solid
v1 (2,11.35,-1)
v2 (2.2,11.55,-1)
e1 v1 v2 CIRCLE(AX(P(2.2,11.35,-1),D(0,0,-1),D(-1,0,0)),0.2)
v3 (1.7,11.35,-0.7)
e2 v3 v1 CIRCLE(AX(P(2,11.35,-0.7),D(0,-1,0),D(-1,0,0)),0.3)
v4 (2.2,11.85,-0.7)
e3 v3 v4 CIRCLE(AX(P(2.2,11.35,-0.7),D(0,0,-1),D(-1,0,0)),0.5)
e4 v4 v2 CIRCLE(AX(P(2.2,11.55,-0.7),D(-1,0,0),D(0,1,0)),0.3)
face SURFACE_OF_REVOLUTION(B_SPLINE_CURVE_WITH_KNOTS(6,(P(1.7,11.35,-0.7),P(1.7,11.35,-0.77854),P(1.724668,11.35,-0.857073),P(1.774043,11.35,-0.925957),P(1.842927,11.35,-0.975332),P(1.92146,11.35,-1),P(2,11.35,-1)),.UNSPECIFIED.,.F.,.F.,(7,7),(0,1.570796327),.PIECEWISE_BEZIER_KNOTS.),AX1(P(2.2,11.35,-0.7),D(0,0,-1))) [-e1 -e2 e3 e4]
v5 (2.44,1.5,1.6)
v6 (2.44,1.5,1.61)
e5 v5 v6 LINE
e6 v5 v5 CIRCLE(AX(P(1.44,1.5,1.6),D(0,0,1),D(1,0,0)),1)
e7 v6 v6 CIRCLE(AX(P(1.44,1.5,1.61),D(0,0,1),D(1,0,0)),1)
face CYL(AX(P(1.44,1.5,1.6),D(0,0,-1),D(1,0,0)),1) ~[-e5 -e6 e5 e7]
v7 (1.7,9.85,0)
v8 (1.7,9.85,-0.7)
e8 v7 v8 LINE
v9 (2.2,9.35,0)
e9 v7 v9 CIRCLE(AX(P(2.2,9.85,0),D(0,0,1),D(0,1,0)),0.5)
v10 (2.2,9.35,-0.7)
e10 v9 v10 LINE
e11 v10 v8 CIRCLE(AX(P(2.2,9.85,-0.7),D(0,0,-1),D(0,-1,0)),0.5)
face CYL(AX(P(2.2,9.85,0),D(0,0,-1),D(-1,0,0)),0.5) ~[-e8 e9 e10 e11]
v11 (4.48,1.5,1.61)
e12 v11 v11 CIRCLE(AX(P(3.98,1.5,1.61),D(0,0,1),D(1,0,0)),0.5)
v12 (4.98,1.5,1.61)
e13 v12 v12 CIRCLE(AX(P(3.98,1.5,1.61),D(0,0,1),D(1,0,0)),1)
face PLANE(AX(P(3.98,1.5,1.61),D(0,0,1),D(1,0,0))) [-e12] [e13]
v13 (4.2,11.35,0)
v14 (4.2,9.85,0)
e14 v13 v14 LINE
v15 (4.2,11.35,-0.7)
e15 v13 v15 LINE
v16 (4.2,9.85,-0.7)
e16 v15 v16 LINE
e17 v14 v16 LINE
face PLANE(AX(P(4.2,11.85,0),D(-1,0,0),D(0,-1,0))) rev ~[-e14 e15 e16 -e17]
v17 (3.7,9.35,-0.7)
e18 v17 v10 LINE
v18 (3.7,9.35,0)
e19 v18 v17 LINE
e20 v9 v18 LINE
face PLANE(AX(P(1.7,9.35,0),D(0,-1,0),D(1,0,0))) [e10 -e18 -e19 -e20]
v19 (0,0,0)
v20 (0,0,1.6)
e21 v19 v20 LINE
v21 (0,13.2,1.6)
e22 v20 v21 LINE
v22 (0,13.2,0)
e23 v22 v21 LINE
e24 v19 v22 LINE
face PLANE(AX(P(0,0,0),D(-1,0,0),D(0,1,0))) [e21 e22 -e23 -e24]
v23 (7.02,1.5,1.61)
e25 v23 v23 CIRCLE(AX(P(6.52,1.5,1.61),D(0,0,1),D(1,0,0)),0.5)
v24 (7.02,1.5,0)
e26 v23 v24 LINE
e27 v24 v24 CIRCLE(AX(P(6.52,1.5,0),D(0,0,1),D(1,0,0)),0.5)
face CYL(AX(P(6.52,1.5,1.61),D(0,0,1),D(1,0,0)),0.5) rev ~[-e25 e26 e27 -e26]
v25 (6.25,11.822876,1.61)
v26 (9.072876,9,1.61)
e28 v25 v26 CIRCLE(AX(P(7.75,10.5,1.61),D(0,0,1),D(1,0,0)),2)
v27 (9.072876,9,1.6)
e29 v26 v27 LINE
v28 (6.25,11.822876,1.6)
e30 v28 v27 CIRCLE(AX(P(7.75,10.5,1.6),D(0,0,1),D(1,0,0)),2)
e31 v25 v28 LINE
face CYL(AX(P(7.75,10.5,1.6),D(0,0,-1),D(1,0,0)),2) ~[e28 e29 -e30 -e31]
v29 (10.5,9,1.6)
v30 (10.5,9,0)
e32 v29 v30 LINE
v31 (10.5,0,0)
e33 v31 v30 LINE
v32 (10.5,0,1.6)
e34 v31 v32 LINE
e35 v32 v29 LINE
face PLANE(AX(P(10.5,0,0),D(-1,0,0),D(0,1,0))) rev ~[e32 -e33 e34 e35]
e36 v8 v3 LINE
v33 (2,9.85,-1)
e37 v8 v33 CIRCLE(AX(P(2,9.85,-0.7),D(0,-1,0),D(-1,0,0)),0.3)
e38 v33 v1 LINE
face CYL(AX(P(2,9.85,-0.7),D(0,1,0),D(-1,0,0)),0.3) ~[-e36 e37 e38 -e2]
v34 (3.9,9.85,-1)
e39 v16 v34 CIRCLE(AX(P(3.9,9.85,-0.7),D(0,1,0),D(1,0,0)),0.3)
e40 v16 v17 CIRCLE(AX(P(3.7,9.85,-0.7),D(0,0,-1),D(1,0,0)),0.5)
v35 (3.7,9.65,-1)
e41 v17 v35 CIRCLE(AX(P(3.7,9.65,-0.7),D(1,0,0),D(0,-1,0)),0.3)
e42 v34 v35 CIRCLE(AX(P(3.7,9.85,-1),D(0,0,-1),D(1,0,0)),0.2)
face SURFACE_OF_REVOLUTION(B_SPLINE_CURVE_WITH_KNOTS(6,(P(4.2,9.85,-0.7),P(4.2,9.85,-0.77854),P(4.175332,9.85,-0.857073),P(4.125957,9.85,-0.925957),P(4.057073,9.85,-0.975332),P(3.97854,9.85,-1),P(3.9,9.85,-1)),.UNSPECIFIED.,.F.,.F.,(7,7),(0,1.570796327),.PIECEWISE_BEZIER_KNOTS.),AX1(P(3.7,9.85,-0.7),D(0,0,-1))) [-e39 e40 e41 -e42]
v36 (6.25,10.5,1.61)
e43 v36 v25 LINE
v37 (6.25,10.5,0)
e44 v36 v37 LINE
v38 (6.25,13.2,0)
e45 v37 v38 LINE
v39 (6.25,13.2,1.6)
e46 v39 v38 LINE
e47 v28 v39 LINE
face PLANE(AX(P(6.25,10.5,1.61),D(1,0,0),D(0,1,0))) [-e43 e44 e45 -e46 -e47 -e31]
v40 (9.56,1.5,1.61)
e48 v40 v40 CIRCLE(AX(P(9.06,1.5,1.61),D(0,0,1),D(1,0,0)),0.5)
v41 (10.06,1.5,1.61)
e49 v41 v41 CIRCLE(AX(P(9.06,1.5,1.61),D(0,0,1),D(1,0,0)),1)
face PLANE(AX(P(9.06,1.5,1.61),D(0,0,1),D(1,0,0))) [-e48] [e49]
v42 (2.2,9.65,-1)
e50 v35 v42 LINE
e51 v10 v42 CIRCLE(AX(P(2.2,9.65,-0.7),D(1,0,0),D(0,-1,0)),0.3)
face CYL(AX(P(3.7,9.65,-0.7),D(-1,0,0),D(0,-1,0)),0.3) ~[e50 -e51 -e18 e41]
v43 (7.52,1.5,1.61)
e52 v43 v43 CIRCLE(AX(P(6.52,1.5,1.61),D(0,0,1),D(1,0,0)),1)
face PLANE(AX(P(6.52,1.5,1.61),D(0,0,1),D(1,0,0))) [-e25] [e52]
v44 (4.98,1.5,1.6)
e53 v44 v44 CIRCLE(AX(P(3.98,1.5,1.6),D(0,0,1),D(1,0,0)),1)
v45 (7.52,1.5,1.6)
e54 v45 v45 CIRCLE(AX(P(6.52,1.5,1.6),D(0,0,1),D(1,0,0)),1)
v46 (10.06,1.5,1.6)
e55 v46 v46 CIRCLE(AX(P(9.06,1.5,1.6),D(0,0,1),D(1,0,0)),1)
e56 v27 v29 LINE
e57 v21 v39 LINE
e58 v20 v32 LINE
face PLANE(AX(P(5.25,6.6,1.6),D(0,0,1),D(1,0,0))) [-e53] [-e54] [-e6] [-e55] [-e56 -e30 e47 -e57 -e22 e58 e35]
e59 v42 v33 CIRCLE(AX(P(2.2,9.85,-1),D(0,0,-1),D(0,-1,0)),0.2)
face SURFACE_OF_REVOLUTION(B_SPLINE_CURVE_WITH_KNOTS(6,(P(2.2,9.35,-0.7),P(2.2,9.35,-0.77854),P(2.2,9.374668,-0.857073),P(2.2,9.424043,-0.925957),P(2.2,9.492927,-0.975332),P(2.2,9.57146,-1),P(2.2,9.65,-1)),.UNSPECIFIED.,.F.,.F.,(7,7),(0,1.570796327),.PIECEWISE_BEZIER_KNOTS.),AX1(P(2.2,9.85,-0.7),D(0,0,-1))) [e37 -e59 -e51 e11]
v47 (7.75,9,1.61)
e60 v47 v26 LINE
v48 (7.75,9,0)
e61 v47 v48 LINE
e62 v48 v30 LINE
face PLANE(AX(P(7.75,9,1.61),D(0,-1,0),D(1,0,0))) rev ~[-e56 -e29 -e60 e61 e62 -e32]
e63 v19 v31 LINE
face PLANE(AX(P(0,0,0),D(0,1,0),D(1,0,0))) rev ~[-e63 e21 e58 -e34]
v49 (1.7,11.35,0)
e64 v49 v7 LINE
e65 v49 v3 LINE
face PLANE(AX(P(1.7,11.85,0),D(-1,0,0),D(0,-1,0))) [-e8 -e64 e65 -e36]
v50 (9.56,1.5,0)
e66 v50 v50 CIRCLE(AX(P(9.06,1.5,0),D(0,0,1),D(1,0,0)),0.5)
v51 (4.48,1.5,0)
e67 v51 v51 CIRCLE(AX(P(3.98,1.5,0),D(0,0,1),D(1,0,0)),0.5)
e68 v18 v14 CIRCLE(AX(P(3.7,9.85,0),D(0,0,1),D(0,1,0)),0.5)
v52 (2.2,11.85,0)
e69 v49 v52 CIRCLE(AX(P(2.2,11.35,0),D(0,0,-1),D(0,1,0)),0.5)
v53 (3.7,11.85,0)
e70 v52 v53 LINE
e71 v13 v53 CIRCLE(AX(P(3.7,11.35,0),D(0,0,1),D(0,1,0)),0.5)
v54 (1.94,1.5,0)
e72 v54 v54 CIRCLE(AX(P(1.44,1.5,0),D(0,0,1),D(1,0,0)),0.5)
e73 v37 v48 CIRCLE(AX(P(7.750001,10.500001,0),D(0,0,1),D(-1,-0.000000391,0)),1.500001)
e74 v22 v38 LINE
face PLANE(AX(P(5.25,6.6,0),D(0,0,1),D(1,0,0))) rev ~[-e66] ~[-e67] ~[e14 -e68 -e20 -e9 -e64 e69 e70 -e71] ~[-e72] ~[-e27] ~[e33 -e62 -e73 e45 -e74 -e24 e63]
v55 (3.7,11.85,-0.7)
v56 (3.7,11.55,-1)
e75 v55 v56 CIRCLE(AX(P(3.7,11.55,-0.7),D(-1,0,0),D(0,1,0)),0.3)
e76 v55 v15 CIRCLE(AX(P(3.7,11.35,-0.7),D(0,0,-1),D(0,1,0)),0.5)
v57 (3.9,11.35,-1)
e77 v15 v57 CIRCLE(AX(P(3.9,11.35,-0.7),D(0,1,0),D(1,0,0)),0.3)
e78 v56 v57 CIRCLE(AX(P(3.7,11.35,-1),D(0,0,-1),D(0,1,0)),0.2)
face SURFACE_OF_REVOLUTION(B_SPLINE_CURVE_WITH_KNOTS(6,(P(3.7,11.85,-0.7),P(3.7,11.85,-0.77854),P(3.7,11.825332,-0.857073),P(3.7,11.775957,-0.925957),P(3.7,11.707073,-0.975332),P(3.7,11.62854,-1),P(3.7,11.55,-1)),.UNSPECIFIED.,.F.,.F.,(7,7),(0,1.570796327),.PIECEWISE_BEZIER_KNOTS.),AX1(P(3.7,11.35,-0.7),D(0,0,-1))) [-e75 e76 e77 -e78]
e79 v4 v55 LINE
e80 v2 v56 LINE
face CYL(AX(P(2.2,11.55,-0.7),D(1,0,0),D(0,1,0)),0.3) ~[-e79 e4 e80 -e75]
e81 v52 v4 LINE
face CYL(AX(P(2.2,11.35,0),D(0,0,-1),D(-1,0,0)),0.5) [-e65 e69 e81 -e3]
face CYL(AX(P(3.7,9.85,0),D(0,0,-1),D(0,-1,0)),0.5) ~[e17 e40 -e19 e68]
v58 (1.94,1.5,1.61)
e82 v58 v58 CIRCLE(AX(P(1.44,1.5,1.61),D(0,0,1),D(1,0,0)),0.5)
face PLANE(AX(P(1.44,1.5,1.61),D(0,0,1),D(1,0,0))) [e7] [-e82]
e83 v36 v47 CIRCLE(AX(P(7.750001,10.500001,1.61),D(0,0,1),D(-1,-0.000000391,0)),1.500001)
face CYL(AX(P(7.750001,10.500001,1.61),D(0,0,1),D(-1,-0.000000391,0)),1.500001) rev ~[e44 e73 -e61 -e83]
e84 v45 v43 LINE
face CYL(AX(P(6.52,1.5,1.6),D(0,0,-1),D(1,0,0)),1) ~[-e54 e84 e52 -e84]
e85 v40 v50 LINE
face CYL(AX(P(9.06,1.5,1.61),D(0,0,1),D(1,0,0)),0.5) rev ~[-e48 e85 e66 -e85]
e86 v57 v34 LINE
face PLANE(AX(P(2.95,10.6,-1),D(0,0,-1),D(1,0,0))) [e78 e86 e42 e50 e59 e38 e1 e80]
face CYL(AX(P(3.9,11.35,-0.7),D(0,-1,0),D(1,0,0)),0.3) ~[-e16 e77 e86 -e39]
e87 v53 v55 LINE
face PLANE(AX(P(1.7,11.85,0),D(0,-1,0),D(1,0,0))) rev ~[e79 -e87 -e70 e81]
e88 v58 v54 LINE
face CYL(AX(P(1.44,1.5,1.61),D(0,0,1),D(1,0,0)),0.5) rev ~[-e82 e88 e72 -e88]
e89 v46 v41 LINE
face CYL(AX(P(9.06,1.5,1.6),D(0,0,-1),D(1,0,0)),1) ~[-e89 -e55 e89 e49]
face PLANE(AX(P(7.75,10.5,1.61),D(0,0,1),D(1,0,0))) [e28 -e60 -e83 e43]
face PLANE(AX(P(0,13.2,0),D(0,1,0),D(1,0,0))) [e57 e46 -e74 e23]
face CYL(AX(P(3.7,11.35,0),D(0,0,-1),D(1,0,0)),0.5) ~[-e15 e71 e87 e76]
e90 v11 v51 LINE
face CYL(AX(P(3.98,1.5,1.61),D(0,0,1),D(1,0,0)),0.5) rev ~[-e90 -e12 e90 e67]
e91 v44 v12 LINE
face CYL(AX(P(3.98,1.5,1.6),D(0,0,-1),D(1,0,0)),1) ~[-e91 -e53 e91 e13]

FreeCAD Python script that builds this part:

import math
import FreeCAD as App
import Part
import Sketcher
from FreeCAD import Vector


def edges_at(feature, points):
    """Names of the edges that pass closest to the given points."""
    edges = feature.Shape.Edges
    near = lambda p: min(range(len(edges)), key=lambda i: edges[i].distToShape(Part.Vertex(*p))[0])
    return sorted({f"Edge{near(p) + 1}" for p in points})


def add_polygon(sketch, points):
    """Adds a closed chain of lines whose ends are joined by coincident constraints."""
    first, n = sketch.GeometryCount, len(points)
    for a, b in zip(points, points[1:] + points[:1]):
        sketch.addGeometry(Part.LineSegment(App.Vector(*a, 0), App.Vector(*b, 0)), False)
    for i in range(n):
        sketch.addConstraint(Sketcher.Constraint("Coincident", first + i, 2, first + (i + 1) % n, 1))

doc = App.newDocument("Part")
body = doc.addObject("PartDesign::Body", "Body")

# Sketch on XY plane
sketch1 = body.newObject("Sketcher::SketchObject", "Sketch")
sketch1.AttachmentSupport = (doc.getObject("XY_Plane"), [""])
sketch1.MapMode = "FlatFace"
add_polygon(sketch1, [(0, 13.2), (0, 0), (10.5, 0), (10.5, 13.2)])  # lines 0-3
sketch1.addConstraint([
    Sketcher.Constraint("Vertical", 0),
    Sketcher.Constraint("Horizontal", 1),
    Sketcher.Constraint("Vertical", 2),
    Sketcher.Constraint("Horizontal", 3),
    Sketcher.Constraint("Coincident", 0, 2, -1, 1),
    Sketcher.Constraint("DistanceX", 1, 1, 1, 2, 10.5),
    Sketcher.Constraint("DistanceY", 0, 2, 0, 1, 13.2),
])
pad1 = body.newObject("PartDesign::Pad", "Pad")
pad1.Profile = sketch1
pad1.Length = 1.6

# Sketch on XY plane
sketch2 = body.newObject("Sketcher::SketchObject", "Sketch001")
sketch2.AttachmentSupport = (doc.getObject("XY_Plane"), [""])
sketch2.MapMode = "FlatFace"
sketch2.AttachmentOffset = App.Placement(Vector(0, 0, 1.6), App.Rotation())
sketch2.addGeometry([
    Part.Circle(Vector(1.44, 1.5, 0), Vector(0, 0, 1), 1),  # 0
    Part.Circle(Vector(3.98, 1.5, 0), Vector(0, 0, 1), 1),  # 1
    Part.Circle(Vector(6.52, 1.5, 0), Vector(0, 0, 1), 1),  # 2
    Part.Circle(Vector(9.06, 1.5, 0), Vector(0, 0, 1), 1),  # 3
    Part.Circle(Vector(7.75, 10.5, 0), Vector(0, 0, 1), 2),  # 4
], False)
sketch2.addConstraint([
    Sketcher.Constraint("Equal", 0, 1),
    Sketcher.Constraint("Equal", 1, 2),
    Sketcher.Constraint("Equal", 2, 3),
    Sketcher.Constraint("Horizontal", 0, 3, 1, 3),
    Sketcher.Constraint("Horizontal", 1, 3, 2, 3),
    Sketcher.Constraint("Horizontal", 2, 3, 3, 3),
    Sketcher.Constraint("Diameter", 0, 2.0),
    Sketcher.Constraint("Diameter", 4, 4.0),
    Sketcher.Constraint("DistanceY", 2, 3, 4, 3, 9.0),
    Sketcher.Constraint("DistanceY", -1, 1, 0, 3, 1.5),
    Sketcher.Constraint("DistanceX", -1, 1, 0, 3, 1.44),
    Sketcher.Constraint("DistanceX", -1, 1, 1, 3, 3.98),
    Sketcher.Constraint("DistanceX", -1, 1, 2, 3, 6.52),
    Sketcher.Constraint("DistanceX", -1, 1, 3, 3, 9.06),
    Sketcher.Constraint("DistanceX", -1, 1, 4, 3, 7.75),
])
pad2 = body.newObject("PartDesign::Pad", "Pad001")
pad2.Profile = sketch2
pad2.Length = 0.01

# Sketch on XY plane
sketch3 = body.newObject("Sketcher::SketchObject", "Sketch002")
sketch3.AttachmentSupport = (doc.getObject("XY_Plane"), [""])
sketch3.MapMode = "FlatFace"
sketch3.AttachmentOffset = App.Placement(Vector(0, 0, 1.61), App.Rotation())
sketch3.addGeometry([
    Part.Circle(Vector(1.44, 1.5, 0), Vector(0, 0, 1), 0.5),  # 0
    Part.Circle(Vector(3.98, 1.5, 0), Vector(0, 0, 1), 0.5),  # 1
    Part.Circle(Vector(6.52, 1.5, 0), Vector(0, 0, 1), 0.5),  # 2
    Part.Circle(Vector(9.06, 1.5, 0), Vector(0, 0, 1), 0.5),  # 3
    Part.ArcOfCircle(Part.Circle(Vector(7.750001, 10.500001, 0), Vector(0, 0, 1), 1.500001), math.radians(-179.999978), math.radians(-90.000022)),  # 4
    Part.LineSegment(Vector(7.75, 9, 0), Vector(10.5, 9, 0)),  # 5
    Part.LineSegment(Vector(10.5, 9, 0), Vector(10.5, 13.2, 0)),  # 6
    Part.LineSegment(Vector(10.5, 13.2, 0), Vector(6.25, 13.2, 0)),  # 7
    Part.LineSegment(Vector(6.25, 13.2, 0), Vector(6.25, 10.5, 0)),  # 8
], False)
sketch3.addConstraint([
    Sketcher.Constraint("Tangent", 4, 2, 5, 1),
    Sketcher.Constraint("Coincident", 5, 2, 6, 1),
    Sketcher.Constraint("Coincident", 6, 2, 7, 1),
    Sketcher.Constraint("Coincident", 7, 2, 8, 1),
    Sketcher.Constraint("Tangent", 8, 2, 4, 1),
    Sketcher.Constraint("Horizontal", 5),
    Sketcher.Constraint("Vertical", 6),
    Sketcher.Constraint("Horizontal", 7),
    Sketcher.Constraint("Vertical", 8),
    Sketcher.Constraint("Equal", 0, 1),
    Sketcher.Constraint("Equal", 1, 2),
    Sketcher.Constraint("Equal", 2, 3),
    Sketcher.Constraint("Horizontal", 0, 3, 1, 3),
    Sketcher.Constraint("Horizontal", 1, 3, 2, 3),
    Sketcher.Constraint("Horizontal", 2, 3, 3, 3),
    Sketcher.Constraint("Diameter", 0, 1.0),
    Sketcher.Constraint("Radius", 4, 1.500001),
    Sketcher.Constraint("DistanceY", 6, 1, 6, 2, 4.2),
    Sketcher.Constraint("DistanceY", -1, 1, 4, 2, 9.0),
    Sketcher.Constraint("DistanceY", 2, 3, 4, 3, 9.000001),
    Sketcher.Constraint("DistanceX", 5, 1, 5, 2, 2.75),
    Sketcher.Constraint("DistanceX", -1, 1, 5, 2, 10.5),
    Sketcher.Constraint("DistanceX", -1, 1, 0, 3, 1.44),
    Sketcher.Constraint("DistanceX", -1, 1, 1, 3, 3.98),
    Sketcher.Constraint("DistanceX", -1, 1, 2, 3, 6.52),
    Sketcher.Constraint("DistanceX", -1, 1, 3, 3, 9.06),
])
pocket1 = body.newObject("PartDesign::Pocket", "Pocket")
pocket1.Profile = sketch3
pocket1.Type = "ThroughAll"

# Sketch on XY plane
sketch4 = body.newObject("Sketcher::SketchObject", "Sketch003")
sketch4.AttachmentSupport = (doc.getObject("XY_Plane"), [""])
sketch4.MapMode = "FlatFace"
add_polygon(sketch4, [(1.7, 9.35), (1.7, 11.85), (4.2, 11.85), (4.2, 9.35)])  # lines 0-3
sketch4.addConstraint([
    Sketcher.Constraint("Vertical", 0),
    Sketcher.Constraint("Horizontal", 1),
    Sketcher.Constraint("Vertical", 2),
    Sketcher.Constraint("Horizontal", 3),
    Sketcher.Constraint("Equal", 3, 0),
    Sketcher.Constraint("DistanceX", 1, 1, 1, 2, 2.5),
    Sketcher.Constraint("DistanceX", -1, 1, 0, 2, 1.7),
    Sketcher.Constraint("DistanceY", -1, 1, 0, 2, 11.85),
])
pad3 = body.newObject("PartDesign::Pad", "Pad002")
pad3.Profile = sketch4
pad3.Length = 1
pad3.Reversed = True
doc.recompute()

fillet = body.newObject("PartDesign::Fillet", "Fillet")
fillet.Base = (pad3, edges_at(pad3, [
    (1.7, 11.85, -0.5),
    (4.2, 11.85, -0.5),
    (4.2, 9.35, -0.5),
    (1.7, 9.35, -0.5),
]))
fillet.Radius = 0.5
doc.recompute()

fillet2 = body.newObject("PartDesign::Fillet", "Fillet001")
fillet2.Base = (fillet, edges_at(fillet, [
    (4.2, 10.6, -1),
    (2.95, 9.35, -1),
    (1.7, 10.6, -1),
    (2.95, 11.85, -1),
]))
fillet2.Radius = 0.3

doc.recompute()
